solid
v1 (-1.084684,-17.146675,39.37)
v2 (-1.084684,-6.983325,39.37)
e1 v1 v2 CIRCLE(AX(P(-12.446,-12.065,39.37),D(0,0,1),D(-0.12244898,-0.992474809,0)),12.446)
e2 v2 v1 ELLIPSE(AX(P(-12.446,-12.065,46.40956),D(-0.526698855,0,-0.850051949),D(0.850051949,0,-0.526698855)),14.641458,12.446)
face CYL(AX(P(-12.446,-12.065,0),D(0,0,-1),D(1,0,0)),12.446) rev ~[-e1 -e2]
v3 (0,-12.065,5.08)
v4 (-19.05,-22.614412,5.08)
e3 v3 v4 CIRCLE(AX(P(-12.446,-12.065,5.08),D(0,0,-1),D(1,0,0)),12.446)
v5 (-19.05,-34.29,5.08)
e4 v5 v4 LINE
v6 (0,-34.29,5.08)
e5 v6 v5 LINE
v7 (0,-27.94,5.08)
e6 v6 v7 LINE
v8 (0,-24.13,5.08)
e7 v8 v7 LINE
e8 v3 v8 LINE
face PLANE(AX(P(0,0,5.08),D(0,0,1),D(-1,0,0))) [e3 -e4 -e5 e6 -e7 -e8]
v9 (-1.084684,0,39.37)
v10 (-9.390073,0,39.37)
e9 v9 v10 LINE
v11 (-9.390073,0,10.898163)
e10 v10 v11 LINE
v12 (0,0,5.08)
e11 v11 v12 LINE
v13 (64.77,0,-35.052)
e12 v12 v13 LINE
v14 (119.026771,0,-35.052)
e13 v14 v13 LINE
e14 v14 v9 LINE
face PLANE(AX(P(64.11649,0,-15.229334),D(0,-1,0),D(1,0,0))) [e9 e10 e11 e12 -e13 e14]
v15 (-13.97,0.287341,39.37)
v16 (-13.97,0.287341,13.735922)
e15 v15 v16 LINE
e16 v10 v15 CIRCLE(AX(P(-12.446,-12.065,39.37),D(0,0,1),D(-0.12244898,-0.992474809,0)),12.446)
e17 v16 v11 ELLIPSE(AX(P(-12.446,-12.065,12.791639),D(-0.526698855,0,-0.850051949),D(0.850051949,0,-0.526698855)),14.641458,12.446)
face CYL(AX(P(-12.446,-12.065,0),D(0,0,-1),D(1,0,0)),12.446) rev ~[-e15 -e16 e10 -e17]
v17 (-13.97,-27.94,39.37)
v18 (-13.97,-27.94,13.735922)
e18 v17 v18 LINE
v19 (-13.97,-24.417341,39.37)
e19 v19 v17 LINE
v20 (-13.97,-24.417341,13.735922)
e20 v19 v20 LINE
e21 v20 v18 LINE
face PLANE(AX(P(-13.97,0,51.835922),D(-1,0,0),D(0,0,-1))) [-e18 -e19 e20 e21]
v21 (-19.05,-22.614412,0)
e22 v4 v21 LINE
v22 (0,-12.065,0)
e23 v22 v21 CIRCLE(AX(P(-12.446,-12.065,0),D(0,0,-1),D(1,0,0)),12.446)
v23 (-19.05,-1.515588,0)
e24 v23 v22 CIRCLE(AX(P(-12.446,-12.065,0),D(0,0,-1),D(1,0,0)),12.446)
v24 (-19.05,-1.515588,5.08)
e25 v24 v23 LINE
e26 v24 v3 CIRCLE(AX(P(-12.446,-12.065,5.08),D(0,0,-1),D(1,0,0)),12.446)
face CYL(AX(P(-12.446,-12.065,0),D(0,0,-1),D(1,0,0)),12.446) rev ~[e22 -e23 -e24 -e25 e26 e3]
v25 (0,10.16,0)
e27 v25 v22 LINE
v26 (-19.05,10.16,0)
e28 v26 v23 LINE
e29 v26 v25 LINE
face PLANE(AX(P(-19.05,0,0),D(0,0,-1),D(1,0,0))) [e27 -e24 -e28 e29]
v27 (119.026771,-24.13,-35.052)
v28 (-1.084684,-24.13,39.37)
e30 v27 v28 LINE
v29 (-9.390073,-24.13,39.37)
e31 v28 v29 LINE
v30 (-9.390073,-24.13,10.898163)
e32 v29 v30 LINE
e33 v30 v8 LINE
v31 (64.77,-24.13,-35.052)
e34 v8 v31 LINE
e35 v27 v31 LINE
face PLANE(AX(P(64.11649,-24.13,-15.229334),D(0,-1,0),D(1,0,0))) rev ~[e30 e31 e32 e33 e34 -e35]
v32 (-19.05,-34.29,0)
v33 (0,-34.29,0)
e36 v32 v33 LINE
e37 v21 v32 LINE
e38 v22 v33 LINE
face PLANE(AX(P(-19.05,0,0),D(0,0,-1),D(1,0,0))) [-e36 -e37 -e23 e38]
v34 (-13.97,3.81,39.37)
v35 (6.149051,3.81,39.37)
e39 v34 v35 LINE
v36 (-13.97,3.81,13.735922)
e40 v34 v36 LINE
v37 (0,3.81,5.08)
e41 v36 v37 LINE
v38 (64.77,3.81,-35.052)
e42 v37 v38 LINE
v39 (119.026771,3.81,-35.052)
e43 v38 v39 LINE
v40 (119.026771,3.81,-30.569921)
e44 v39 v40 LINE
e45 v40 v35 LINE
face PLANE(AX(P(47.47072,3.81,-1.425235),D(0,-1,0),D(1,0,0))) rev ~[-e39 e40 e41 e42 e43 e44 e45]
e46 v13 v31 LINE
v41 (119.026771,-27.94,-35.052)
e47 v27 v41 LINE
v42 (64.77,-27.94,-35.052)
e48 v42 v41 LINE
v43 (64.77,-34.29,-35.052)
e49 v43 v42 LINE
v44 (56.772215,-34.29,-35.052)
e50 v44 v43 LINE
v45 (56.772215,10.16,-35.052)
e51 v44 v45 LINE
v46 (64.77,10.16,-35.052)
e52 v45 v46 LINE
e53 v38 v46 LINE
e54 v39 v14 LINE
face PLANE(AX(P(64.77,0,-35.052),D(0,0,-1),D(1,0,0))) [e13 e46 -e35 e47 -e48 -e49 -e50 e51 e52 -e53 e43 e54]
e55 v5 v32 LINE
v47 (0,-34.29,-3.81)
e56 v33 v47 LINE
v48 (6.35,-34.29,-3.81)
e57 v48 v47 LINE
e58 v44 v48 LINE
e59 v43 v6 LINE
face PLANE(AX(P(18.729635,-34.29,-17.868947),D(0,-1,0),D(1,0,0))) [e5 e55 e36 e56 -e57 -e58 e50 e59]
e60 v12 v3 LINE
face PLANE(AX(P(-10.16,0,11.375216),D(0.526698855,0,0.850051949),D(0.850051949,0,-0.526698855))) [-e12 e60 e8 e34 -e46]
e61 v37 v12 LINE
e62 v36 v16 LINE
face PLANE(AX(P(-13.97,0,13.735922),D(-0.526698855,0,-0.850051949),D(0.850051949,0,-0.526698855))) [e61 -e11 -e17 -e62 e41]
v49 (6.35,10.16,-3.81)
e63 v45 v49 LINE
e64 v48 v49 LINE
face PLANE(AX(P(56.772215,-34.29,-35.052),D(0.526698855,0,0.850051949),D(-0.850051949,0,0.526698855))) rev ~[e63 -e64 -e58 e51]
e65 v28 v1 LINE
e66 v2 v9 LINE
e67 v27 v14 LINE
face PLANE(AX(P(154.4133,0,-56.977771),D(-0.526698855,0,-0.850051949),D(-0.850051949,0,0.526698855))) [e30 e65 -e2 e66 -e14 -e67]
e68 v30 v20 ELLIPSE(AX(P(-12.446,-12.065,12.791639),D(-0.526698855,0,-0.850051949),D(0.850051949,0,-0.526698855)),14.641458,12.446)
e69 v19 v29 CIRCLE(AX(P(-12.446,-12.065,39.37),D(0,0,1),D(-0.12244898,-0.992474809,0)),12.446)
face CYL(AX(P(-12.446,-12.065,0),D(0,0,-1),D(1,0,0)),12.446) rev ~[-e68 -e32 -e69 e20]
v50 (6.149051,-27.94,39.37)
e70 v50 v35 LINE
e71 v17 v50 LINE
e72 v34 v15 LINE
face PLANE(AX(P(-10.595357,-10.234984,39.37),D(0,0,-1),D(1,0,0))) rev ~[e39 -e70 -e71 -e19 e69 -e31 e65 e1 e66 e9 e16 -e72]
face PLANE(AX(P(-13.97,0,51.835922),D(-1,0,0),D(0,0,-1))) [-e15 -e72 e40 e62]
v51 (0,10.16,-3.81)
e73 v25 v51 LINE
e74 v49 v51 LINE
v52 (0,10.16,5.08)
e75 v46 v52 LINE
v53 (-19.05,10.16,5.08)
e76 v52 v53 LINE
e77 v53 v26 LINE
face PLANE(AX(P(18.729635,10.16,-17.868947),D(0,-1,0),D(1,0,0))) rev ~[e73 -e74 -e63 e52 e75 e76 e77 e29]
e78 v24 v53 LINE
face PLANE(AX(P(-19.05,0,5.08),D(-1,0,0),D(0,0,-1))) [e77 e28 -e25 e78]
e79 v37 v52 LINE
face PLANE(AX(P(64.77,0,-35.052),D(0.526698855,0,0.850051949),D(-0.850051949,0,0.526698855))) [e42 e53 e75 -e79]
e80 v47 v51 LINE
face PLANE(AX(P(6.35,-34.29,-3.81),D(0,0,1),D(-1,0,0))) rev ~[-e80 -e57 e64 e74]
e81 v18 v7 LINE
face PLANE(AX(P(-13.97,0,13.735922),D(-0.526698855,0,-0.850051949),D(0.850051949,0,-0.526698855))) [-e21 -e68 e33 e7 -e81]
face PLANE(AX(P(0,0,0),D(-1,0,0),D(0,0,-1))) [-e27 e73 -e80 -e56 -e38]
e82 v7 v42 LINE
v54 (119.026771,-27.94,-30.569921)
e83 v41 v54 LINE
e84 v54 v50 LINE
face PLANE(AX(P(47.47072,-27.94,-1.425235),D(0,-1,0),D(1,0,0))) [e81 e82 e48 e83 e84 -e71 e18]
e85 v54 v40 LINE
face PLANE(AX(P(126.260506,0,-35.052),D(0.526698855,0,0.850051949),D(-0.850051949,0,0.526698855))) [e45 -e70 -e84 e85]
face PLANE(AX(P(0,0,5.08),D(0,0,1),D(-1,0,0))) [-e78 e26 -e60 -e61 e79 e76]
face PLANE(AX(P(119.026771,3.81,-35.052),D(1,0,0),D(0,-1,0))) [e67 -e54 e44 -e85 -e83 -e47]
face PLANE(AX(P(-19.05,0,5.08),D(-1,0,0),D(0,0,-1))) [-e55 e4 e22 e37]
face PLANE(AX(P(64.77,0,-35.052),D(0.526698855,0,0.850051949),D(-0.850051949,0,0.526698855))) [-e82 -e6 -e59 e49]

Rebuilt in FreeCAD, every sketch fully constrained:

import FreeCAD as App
import Part
import Sketcher

V = App.Vector
Q = App.Units.Quantity


def add_polygon(sketch, points):
    """Adds a closed chain of lines whose ends are joined by coincident constraints."""
    first, n = sketch.GeometryCount, len(points)
    for a, b in zip(points, points[1:] + points[:1]):
        sketch.addGeometry(Part.LineSegment(App.Vector(*a, 0), App.Vector(*b, 0)), False)
    for i in range(n):
        sketch.addConstraint(Sketcher.Constraint("Coincident", first + i, 2, first + (i + 1) % n, 1))

doc = App.newDocument("Part")
body = doc.addObject("PartDesign::Body", "Body")

sketch1 = body.newObject("Sketcher::SketchObject", "Sketch")
sketch1.AttachmentSupport = (doc.getObject("XZ_Plane"), [""])
sketch1.MapMode = "FlatFace"
add_polygon(sketch1, [(-19, 5), (-19, 0), (0, 0), (0, -35), (65, -35), (0, 5)])
sketch1.addConstraint(Sketcher.Constraint("Vertical", 0))
sketch1.addConstraint(Sketcher.Constraint("Horizontal", 1))
sketch1.addConstraint(Sketcher.Constraint("Vertical", 2))
sketch1.addConstraint(Sketcher.Constraint("Horizontal", 3))
sketch1.addConstraint(Sketcher.Constraint("Horizontal", 5))
sketch1.addConstraint(Sketcher.Constraint("Coincident", 1, 2, -1, 1))
sketch1.addConstraint(Sketcher.Constraint("PointOnObject", 4, 2, -2))
sketch1.addConstraint(Sketcher.Constraint("DistanceY", 0, 2, 0, 1, Q("0.2 in")))
sketch1.addConstraint(Sketcher.Constraint("DistanceX", 1, 1, 1, 2, Q("0.75 in")))
sketch1.addConstraint(Sketcher.Constraint("DistanceX", 3, 1, 3, 2, Q("2.55 in")))
sketch1.addConstraint(Sketcher.Constraint("DistanceY", 2, 2, 2, 1, Q("1.38 in")))
pad1 = body.newObject("PartDesign::Pad", "Pad")
pad1.Profile = sketch1
pad1.Type = "TwoLengths"
pad1.Length = Q("1.35 in")
pad1.Length2 = Q("0.4 in")

sketch2 = body.newObject("Sketcher::SketchObject", "Sketch001")
sketch2.AttachmentSupport = (doc.getObject("XZ_Plane"), [""])
sketch2.MapMode = "FlatFace"
add_polygon(sketch2, [(-14, 52), (-14, 14), (65, -35), (126, -35)])
sketch2.addConstraint(Sketcher.Constraint("Vertical", 0))
sketch2.addConstraint(Sketcher.Constraint("Horizontal", 2))
sketch2.addConstraint(Sketcher.Constraint("Parallel", 1, 3))
sketch2.addConstraint(Sketcher.Constraint("DistanceY", 0, 2, 0, 1, Q("1.5 in")))
sketch2.addConstraint(Sketcher.Constraint("DistanceX", 0, 2, 1, 2, Q("3.1 in")))
sketch2.addConstraint(Sketcher.Constraint("DistanceX", 0, 2, -1, 1, Q("0.55 in")))
sketch2.addConstraint(Sketcher.Constraint("DistanceY", 1, 2, -1, 1, Q("1.38 in")))
sketch2.addConstraint(Sketcher.Constraint("DistanceX", 2, 1, 2, 2, Q("61.490506 mm")))
pad2 = body.newObject("PartDesign::Pad", "Pad001")
pad2.Profile = sketch2
pad2.Type = "TwoLengths"
pad2.Length = Q("1.1 in")
pad2.Length2 = Q("0.15 in")

sketch3 = body.newObject("Sketcher::SketchObject", "Sketch002")
sketch3.AttachmentSupport = (doc.getObject("XY_Plane"), [""])
sketch3.MapMode = "FlatFace"
sketch3.addGeometry(Part.Circle(V(-12, -12, 0), V(0, 0, 1), 12), False)
sketch3.addConstraint(Sketcher.Constraint("Diameter", 0, Q("0.98 in")))
sketch3.addConstraint(Sketcher.Constraint("DistanceX", 0, 3, -1, 1, Q("0.49 in")))
sketch3.addConstraint(Sketcher.Constraint("DistanceY", 0, 3, -1, 1, Q("0.475 in")))
pocket1 = body.newObject("PartDesign::Pocket", "Pocket")
pocket1.Profile = sketch3
pocket1.Length = Q("1.55 in")
pocket1.Reversed = True

sketch4 = body.newObject("Sketcher::SketchObject", "Sketch003")
sketch4.AttachmentSupport = (doc.getObject("XY_Plane"), [""])
sketch4.MapMode = "FlatFace"
sketch4.AttachmentOffset = App.Placement(V(0, 0, 1.55 * 25.4), App.Rotation())
add_polygon(sketch4, [(-37, -42), (-37, 21), (16, 21), (16, -42)])
sketch4.addConstraint(Sketcher.Constraint("Vertical", 0))
sketch4.addConstraint(Sketcher.Constraint("Horizontal", 1))
sketch4.addConstraint(Sketcher.Constraint("Vertical", 2))
sketch4.addConstraint(Sketcher.Constraint("Horizontal", 3))
sketch4.addConstraint(Sketcher.Constraint("DistanceY", 0, 1, 0, 2, Q("63.378159 mm")))
sketch4.addConstraint(Sketcher.Constraint("DistanceX", 1, 1, 1, 2, Q("52.946348 mm")))
sketch4.addConstraint(Sketcher.Constraint("DistanceX", 0, 2, -1, 1, Q("37.068531 mm")))
sketch4.addConstraint(Sketcher.Constraint("DistanceY", -1, 1, 0, 2, Q("21.454096 mm")))
pocket2 = body.newObject("PartDesign::Pocket", "Pocket001")
pocket2.Profile = sketch4
pocket2.Length = Q("1 in")
pocket2.Reversed = True

sketch5 = body.newObject("Sketcher::SketchObject", "Sketch004")
sketch5.AttachmentSupport = (doc.getObject("XZ_Plane"), [""])
sketch5.MapMode = "FlatFace"
add_polygon(sketch5, [(154, -57), (-10, 45), (-10, 11), (100, -57)])
sketch5.addConstraint(Sketcher.Constraint("Vertical", 1))
sketch5.addConstraint(Sketcher.Constraint("Horizontal", 3))
sketch5.addConstraint(Sketcher.Constraint("Parallel", 0, 2))
sketch5.addConstraint(Sketcher.Constraint("DistanceX", 0, 2, -1, 1, Q("0.4 in")))
sketch5.addConstraint(Sketcher.Constraint("Distance", 2, Q("5.1093 in")))
sketch5.addConstraint(Sketcher.Constraint("DistanceX", 3, 1, 3, 2, Q("54.256771 mm")))
sketch5.addConstraint(Sketcher.Constraint("DistanceY", 1, 2, 1, 1, Q("33.617921 mm")))
sketch5.addConstraint(Sketcher.Constraint("DistanceY", 2, 2, -1, 1, Q("56.977771 mm")))
pocket3 = body.newObject("PartDesign::Pocket", "Pocket002")
pocket3.Profile = sketch5
pocket3.Length = Q("0.95 in")
pocket3.Reversed = True

sketch6 = body.newObject("Sketcher::SketchObject", "Sketch005")
sketch6.AttachmentSupport = (doc.getObject("XZ_Plane"), [""])
sketch6.MapMode = "FlatFace"
sketch6.AttachmentOffset = App.Placement(V(0, 0, 1.35 * 25.4), App.Rotation())
add_polygon(sketch6, [(0, -4), (0, -35), (57, -35), (6, -4)])
sketch6.addConstraint(Sketcher.Constraint("Vertical", 0))
sketch6.addConstraint(Sketcher.Constraint("Horizontal", 1))
sketch6.addConstraint(Sketcher.Constraint("Horizontal", 3))
sketch6.addConstraint(Sketcher.Constraint("PointOnObject", 0, 2, -2))
sketch6.addConstraint(Sketcher.Constraint("DistanceX", 3, 2, 3, 1, Q("0.25 in")))
sketch6.addConstraint(Sketcher.Constraint("DistanceY", 0, 2, 0, 1, Q("1.23 in")))
sketch6.addConstraint(Sketcher.Constraint("DistanceY", 0, 2, -1, 1, Q("1.38 in")))
sketch6.addConstraint(Sketcher.Constraint("DistanceX", 1, 1, 1, 2, Q("56.772215 mm")))
pocket4 = body.newObject("PartDesign::Pocket", "Pocket003")
pocket4.Profile = sketch6
pocket4.Length = Q("2 in")

sketch7 = body.newObject("Sketcher::SketchObject", "Sketch006")
sketch7.AttachmentSupport = (doc.getObject("XY_Plane"), [""])
sketch7.MapMode = "FlatFace"
sketch7.AttachmentOffset = App.Placement(V(0, 0, -1.38 * 25.4), App.Rotation())
add_polygon(sketch7, [(119, -28), (119, 4), (126, 4), (126, -28)])
sketch7.addConstraint(Sketcher.Constraint("Vertical", 0))
sketch7.addConstraint(Sketcher.Constraint("Horizontal", 1))
sketch7.addConstraint(Sketcher.Constraint("Vertical", 2))
sketch7.addConstraint(Sketcher.Constraint("Horizontal", 3))
sketch7.addConstraint(Sketcher.Constraint("DistanceY", 0, 1, 0, 2, Q("1.25 in")))
sketch7.addConstraint(Sketcher.Constraint("DistanceY", 2, 2, -1, 1, Q("1.1 in")))
sketch7.addConstraint(Sketcher.Constraint("DistanceX", 1, 1, 1, 2, Q("7.233735 mm")))
sketch7.addConstraint(Sketcher.Constraint("DistanceX", -1, 1, 0, 2, Q("119.026771 mm")))
pocket5 = body.newObject("PartDesign::Pocket", "Pocket004")
pocket5.Profile = sketch7
pocket5.Length = Q("1 in")
pocket5.Reversed = True

doc.recompute()
